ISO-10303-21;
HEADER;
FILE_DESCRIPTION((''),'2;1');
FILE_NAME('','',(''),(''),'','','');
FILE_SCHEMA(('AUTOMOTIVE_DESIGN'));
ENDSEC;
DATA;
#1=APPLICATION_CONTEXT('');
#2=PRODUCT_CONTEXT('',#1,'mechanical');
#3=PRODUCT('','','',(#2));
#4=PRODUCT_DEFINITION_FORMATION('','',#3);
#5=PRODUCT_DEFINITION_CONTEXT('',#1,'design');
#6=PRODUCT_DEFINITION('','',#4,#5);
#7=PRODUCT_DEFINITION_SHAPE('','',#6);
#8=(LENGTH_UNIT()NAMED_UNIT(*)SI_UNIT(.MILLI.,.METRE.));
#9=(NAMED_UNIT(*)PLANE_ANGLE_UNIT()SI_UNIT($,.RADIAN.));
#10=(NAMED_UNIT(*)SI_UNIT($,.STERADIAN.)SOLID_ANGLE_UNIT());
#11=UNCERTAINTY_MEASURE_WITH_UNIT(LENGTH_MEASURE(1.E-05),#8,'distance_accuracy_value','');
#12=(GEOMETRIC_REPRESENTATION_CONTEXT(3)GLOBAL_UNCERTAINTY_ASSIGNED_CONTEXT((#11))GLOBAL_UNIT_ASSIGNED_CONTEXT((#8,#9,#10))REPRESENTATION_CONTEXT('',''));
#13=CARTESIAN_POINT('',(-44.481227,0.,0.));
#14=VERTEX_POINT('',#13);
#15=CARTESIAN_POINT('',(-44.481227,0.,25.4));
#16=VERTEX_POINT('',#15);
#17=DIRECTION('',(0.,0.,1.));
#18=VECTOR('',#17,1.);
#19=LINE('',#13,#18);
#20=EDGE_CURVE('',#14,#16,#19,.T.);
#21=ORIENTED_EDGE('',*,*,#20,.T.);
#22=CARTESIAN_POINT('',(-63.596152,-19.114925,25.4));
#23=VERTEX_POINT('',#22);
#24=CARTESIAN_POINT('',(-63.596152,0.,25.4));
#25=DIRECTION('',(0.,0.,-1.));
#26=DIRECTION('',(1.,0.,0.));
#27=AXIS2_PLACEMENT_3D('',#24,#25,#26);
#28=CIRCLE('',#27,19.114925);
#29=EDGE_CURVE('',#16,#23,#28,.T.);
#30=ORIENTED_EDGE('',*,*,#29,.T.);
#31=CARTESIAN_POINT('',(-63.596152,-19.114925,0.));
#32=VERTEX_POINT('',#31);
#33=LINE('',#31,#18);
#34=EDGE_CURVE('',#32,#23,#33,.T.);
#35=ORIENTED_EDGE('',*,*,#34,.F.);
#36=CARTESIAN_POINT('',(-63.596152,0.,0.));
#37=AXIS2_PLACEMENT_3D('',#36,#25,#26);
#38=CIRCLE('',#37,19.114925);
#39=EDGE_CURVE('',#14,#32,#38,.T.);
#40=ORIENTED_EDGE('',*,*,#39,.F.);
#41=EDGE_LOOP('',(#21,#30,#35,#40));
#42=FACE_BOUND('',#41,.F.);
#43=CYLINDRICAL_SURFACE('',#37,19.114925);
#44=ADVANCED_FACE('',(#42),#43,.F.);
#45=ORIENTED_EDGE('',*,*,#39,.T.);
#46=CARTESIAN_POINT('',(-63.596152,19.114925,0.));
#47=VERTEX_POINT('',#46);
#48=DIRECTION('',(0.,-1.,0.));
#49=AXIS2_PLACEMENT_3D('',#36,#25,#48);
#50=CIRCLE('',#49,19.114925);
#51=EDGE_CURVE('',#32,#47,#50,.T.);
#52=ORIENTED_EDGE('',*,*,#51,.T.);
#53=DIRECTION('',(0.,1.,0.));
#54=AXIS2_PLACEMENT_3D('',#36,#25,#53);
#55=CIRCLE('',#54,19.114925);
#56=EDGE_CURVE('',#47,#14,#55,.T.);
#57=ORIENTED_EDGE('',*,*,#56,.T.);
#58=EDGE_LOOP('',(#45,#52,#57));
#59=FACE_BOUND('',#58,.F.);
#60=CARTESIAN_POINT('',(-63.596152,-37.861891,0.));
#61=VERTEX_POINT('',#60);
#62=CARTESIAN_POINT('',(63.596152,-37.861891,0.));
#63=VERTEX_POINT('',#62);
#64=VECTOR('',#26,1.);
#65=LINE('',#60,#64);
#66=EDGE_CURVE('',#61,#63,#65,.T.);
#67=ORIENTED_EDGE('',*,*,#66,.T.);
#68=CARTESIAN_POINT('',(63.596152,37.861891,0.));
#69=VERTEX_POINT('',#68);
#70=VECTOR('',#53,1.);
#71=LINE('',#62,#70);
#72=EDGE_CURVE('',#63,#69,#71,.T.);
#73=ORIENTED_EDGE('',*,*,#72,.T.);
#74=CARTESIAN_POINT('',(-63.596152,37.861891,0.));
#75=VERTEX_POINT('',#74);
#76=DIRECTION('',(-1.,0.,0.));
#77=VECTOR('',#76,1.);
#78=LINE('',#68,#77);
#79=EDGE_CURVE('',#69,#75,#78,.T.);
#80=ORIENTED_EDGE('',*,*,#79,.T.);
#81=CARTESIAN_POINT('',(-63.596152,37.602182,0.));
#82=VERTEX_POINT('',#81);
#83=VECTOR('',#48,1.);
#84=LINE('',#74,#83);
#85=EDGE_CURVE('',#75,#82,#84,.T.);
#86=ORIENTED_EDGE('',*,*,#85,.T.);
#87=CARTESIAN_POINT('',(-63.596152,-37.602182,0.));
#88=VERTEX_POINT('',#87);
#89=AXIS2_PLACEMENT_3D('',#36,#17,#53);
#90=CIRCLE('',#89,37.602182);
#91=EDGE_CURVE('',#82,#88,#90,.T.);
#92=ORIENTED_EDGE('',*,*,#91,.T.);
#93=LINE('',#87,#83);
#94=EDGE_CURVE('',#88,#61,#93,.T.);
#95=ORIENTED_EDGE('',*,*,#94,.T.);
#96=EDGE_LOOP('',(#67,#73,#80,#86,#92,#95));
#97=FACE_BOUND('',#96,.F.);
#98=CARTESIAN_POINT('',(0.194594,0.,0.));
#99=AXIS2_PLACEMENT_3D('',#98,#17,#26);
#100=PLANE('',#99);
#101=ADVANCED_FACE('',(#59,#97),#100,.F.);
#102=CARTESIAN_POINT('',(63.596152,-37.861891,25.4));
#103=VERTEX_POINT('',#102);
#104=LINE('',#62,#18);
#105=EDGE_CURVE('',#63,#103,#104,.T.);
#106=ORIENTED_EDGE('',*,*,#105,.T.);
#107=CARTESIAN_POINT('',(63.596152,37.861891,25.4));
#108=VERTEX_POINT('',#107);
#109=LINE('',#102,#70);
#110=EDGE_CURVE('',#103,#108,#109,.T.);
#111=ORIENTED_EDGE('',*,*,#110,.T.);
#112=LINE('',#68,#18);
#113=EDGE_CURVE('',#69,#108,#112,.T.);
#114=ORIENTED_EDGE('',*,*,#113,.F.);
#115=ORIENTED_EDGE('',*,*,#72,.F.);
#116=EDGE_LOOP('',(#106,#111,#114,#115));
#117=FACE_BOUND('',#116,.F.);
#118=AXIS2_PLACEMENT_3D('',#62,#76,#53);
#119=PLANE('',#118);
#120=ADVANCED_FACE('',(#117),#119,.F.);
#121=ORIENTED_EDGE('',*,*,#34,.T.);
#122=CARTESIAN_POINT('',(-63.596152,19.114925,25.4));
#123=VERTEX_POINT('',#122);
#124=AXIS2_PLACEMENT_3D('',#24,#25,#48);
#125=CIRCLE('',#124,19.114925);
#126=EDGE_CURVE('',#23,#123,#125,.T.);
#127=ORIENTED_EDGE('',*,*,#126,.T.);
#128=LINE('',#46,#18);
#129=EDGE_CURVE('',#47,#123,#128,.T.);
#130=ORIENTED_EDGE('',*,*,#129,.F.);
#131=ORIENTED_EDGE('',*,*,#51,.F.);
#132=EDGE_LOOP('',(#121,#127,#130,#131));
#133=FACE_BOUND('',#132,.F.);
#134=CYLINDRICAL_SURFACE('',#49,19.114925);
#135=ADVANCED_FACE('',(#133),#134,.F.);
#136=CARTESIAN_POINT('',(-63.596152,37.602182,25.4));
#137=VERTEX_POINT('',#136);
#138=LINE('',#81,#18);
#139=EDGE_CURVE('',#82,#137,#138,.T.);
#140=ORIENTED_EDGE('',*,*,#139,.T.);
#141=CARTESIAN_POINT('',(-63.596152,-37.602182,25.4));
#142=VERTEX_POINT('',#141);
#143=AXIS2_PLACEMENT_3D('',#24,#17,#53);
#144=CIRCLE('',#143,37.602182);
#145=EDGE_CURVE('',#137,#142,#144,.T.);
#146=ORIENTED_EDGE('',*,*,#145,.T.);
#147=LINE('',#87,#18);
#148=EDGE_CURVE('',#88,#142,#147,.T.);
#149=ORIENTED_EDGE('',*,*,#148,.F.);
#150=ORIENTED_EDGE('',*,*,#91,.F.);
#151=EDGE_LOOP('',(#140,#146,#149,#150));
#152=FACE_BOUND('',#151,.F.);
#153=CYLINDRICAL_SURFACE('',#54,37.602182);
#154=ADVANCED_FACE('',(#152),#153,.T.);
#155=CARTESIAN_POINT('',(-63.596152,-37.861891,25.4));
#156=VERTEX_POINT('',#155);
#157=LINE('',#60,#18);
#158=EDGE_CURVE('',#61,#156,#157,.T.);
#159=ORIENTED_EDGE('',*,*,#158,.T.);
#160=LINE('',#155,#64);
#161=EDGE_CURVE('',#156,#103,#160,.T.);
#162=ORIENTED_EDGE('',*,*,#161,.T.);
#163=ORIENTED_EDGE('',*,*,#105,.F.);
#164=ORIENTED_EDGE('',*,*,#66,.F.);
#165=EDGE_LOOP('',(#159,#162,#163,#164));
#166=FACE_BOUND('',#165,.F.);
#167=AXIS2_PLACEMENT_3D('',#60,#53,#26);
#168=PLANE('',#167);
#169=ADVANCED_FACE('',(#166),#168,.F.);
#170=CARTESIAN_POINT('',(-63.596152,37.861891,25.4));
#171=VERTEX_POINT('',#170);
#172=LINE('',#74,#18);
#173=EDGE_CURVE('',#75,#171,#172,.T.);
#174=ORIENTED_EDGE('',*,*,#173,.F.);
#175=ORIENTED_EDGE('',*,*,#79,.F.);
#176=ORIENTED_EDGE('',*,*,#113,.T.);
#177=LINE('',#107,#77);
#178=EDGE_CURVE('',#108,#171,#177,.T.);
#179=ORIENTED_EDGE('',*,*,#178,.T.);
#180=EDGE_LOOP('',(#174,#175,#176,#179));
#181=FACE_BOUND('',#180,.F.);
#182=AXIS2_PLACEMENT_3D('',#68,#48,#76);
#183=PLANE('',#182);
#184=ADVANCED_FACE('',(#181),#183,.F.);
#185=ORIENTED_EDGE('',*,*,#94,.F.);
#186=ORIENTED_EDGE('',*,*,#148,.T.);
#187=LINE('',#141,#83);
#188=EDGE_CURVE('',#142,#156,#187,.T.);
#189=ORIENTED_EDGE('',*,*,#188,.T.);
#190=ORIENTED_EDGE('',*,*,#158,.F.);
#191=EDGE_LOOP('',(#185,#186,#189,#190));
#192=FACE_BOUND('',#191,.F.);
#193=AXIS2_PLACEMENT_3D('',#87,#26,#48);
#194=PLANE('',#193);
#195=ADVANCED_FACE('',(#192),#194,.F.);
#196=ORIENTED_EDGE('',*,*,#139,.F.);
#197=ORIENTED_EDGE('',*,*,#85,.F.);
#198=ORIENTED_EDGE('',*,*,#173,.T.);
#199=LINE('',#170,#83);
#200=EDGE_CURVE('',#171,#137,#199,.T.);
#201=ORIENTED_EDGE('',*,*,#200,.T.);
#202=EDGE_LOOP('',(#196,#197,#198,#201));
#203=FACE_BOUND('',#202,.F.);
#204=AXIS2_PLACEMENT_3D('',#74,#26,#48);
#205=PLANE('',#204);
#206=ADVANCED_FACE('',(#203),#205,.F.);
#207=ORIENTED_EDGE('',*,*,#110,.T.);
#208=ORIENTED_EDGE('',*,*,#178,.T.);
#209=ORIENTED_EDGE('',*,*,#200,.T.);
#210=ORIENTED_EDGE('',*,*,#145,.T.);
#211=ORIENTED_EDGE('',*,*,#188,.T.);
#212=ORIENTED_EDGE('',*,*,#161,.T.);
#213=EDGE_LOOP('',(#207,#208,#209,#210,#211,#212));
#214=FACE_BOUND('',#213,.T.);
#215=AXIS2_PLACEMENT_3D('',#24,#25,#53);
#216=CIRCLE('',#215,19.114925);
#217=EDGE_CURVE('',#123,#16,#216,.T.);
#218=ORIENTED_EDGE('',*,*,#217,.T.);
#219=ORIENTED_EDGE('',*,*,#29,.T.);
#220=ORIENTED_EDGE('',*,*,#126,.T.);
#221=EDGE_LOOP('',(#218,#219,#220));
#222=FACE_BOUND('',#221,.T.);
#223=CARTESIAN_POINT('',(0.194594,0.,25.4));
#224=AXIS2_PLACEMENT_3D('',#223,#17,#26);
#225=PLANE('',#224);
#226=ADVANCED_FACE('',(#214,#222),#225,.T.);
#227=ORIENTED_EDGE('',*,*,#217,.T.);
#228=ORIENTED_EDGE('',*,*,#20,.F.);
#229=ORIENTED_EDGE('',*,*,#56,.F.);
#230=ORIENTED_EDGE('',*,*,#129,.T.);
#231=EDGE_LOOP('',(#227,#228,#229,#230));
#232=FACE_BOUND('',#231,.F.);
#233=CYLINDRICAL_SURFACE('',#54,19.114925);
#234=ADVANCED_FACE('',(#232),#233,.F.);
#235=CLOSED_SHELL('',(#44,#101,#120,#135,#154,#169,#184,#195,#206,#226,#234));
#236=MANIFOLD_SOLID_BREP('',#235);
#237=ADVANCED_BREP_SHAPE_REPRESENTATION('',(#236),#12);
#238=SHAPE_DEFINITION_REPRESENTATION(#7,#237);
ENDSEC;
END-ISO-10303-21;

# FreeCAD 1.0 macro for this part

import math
import FreeCAD as App
import Part
import Sketcher
Q = App.Units.Quantity

doc = App.newDocument("Part")
params = doc.addObject("Spreadsheet::Sheet", "Params")
for row, (alias, value) in enumerate([
    ("pad1_length", "1 in"),
], start=1):
    params.set(f"A{row}", alias)
    params.set(f"B{row}", "=" + value)
    params.setAlias(f"B{row}", alias)

body = doc.addObject("PartDesign::Body", "Body")

# Sketch on XY plane
sketch1 = body.newObject("Sketcher::SketchObject", "Sketch")
sketch1.AttachmentSupport = (doc.getObject("XY_Plane"), [""])
sketch1.MapMode = "FlatFace"
sketch1.addGeometry([
    Part.LineSegment(App.Vector(-63.6, -37.6, 0), App.Vector(-63.6, -37.86, 0)),  # 0
    Part.LineSegment(App.Vector(-63.6, -37.86, 0), App.Vector(63.6, -37.86, 0)),  # 1
    Part.LineSegment(App.Vector(63.6, -37.86, 0), App.Vector(63.6, 37.86, 0)),  # 2
    Part.LineSegment(App.Vector(63.6, 37.86, 0), App.Vector(-63.6, 37.86, 0)),  # 3
    Part.LineSegment(App.Vector(-63.6, 37.86, 0), App.Vector(-63.6, 37.6, 0)),  # 4
    Part.ArcOfCircle(Part.Circle(App.Vector(-63.6, 0, 0), App.Vector(0, 0, 1), 37.6), math.radians(90), math.radians(270)),  # 5
    Part.ArcOfCircle(Part.Circle(App.Vector(-63.6, 0, 0), App.Vector(0, 0, 1), 19.11), math.radians(0), math.radians(90)),  # 6
    Part.ArcOfCircle(Part.Circle(App.Vector(-63.6, 0, 0), App.Vector(0, 0, 1), 19.11), math.radians(-90), math.radians(0)),  # 7
    Part.ArcOfCircle(Part.Circle(App.Vector(-63.6, 0, 0), App.Vector(0, 0, 1), 19.11), math.radians(90), math.radians(270)),  # 8
], False)
sketch1.addConstraint([
    Sketcher.Constraint("Coincident", 0, 2, 1, 1),
    Sketcher.Constraint("Coincident", 1, 2, 2, 1),
    Sketcher.Constraint("Coincident", 2, 2, 3, 1),
    Sketcher.Constraint("Coincident", 3, 2, 4, 1),
    Sketcher.Constraint("Coincident", 4, 2, 5, 1),
    Sketcher.Constraint("Coincident", 5, 2, 0, 1),
    Sketcher.Constraint("Tangent", 6, 1, 7, 2),
    Sketcher.Constraint("Tangent", 7, 1, 8, 2),
    Sketcher.Constraint("Tangent", 8, 1, 6, 2),
    Sketcher.Constraint("Vertical", 0),
    Sketcher.Constraint("Horizontal", 1),
    Sketcher.Constraint("Vertical", 2),
    Sketcher.Constraint("Horizontal", 3),
    Sketcher.Constraint("Vertical", 4),
    Sketcher.Constraint("Coincident", 6, 3, 5, 3),
    Sketcher.Constraint("Symmetric", 0, 2, 2, 2, -1, 1),
    Sketcher.Constraint("Symmetric", 4, 2, 5, 2, -1),
    Sketcher.Constraint("PointOnObject", 6, 1, -1),
    Sketcher.Constraint("Vertical", 8, 3, 0, 2),
    Sketcher.Constraint("Vertical", 5, 2, 7, 1),
    Sketcher.Constraint("Vertical", 7, 1, 8, 1),
    Sketcher.Constraint("Radius", 5, Q("37.602182 mm")),
    Sketcher.Constraint("Radius", 6, Q("19.114925 mm")),
    Sketcher.Constraint("DistanceY", 0, 2, 0, 1, Q("0.259709 mm")),
    Sketcher.Constraint("DistanceX", 1, 1, 1, 2, Q("127.192304 mm")),
])
pad1 = body.newObject("PartDesign::Pad", "Pad")
pad1.Profile = sketch1
pad1.setExpression("Length", "Params.pad1_length")

doc.recompute()
